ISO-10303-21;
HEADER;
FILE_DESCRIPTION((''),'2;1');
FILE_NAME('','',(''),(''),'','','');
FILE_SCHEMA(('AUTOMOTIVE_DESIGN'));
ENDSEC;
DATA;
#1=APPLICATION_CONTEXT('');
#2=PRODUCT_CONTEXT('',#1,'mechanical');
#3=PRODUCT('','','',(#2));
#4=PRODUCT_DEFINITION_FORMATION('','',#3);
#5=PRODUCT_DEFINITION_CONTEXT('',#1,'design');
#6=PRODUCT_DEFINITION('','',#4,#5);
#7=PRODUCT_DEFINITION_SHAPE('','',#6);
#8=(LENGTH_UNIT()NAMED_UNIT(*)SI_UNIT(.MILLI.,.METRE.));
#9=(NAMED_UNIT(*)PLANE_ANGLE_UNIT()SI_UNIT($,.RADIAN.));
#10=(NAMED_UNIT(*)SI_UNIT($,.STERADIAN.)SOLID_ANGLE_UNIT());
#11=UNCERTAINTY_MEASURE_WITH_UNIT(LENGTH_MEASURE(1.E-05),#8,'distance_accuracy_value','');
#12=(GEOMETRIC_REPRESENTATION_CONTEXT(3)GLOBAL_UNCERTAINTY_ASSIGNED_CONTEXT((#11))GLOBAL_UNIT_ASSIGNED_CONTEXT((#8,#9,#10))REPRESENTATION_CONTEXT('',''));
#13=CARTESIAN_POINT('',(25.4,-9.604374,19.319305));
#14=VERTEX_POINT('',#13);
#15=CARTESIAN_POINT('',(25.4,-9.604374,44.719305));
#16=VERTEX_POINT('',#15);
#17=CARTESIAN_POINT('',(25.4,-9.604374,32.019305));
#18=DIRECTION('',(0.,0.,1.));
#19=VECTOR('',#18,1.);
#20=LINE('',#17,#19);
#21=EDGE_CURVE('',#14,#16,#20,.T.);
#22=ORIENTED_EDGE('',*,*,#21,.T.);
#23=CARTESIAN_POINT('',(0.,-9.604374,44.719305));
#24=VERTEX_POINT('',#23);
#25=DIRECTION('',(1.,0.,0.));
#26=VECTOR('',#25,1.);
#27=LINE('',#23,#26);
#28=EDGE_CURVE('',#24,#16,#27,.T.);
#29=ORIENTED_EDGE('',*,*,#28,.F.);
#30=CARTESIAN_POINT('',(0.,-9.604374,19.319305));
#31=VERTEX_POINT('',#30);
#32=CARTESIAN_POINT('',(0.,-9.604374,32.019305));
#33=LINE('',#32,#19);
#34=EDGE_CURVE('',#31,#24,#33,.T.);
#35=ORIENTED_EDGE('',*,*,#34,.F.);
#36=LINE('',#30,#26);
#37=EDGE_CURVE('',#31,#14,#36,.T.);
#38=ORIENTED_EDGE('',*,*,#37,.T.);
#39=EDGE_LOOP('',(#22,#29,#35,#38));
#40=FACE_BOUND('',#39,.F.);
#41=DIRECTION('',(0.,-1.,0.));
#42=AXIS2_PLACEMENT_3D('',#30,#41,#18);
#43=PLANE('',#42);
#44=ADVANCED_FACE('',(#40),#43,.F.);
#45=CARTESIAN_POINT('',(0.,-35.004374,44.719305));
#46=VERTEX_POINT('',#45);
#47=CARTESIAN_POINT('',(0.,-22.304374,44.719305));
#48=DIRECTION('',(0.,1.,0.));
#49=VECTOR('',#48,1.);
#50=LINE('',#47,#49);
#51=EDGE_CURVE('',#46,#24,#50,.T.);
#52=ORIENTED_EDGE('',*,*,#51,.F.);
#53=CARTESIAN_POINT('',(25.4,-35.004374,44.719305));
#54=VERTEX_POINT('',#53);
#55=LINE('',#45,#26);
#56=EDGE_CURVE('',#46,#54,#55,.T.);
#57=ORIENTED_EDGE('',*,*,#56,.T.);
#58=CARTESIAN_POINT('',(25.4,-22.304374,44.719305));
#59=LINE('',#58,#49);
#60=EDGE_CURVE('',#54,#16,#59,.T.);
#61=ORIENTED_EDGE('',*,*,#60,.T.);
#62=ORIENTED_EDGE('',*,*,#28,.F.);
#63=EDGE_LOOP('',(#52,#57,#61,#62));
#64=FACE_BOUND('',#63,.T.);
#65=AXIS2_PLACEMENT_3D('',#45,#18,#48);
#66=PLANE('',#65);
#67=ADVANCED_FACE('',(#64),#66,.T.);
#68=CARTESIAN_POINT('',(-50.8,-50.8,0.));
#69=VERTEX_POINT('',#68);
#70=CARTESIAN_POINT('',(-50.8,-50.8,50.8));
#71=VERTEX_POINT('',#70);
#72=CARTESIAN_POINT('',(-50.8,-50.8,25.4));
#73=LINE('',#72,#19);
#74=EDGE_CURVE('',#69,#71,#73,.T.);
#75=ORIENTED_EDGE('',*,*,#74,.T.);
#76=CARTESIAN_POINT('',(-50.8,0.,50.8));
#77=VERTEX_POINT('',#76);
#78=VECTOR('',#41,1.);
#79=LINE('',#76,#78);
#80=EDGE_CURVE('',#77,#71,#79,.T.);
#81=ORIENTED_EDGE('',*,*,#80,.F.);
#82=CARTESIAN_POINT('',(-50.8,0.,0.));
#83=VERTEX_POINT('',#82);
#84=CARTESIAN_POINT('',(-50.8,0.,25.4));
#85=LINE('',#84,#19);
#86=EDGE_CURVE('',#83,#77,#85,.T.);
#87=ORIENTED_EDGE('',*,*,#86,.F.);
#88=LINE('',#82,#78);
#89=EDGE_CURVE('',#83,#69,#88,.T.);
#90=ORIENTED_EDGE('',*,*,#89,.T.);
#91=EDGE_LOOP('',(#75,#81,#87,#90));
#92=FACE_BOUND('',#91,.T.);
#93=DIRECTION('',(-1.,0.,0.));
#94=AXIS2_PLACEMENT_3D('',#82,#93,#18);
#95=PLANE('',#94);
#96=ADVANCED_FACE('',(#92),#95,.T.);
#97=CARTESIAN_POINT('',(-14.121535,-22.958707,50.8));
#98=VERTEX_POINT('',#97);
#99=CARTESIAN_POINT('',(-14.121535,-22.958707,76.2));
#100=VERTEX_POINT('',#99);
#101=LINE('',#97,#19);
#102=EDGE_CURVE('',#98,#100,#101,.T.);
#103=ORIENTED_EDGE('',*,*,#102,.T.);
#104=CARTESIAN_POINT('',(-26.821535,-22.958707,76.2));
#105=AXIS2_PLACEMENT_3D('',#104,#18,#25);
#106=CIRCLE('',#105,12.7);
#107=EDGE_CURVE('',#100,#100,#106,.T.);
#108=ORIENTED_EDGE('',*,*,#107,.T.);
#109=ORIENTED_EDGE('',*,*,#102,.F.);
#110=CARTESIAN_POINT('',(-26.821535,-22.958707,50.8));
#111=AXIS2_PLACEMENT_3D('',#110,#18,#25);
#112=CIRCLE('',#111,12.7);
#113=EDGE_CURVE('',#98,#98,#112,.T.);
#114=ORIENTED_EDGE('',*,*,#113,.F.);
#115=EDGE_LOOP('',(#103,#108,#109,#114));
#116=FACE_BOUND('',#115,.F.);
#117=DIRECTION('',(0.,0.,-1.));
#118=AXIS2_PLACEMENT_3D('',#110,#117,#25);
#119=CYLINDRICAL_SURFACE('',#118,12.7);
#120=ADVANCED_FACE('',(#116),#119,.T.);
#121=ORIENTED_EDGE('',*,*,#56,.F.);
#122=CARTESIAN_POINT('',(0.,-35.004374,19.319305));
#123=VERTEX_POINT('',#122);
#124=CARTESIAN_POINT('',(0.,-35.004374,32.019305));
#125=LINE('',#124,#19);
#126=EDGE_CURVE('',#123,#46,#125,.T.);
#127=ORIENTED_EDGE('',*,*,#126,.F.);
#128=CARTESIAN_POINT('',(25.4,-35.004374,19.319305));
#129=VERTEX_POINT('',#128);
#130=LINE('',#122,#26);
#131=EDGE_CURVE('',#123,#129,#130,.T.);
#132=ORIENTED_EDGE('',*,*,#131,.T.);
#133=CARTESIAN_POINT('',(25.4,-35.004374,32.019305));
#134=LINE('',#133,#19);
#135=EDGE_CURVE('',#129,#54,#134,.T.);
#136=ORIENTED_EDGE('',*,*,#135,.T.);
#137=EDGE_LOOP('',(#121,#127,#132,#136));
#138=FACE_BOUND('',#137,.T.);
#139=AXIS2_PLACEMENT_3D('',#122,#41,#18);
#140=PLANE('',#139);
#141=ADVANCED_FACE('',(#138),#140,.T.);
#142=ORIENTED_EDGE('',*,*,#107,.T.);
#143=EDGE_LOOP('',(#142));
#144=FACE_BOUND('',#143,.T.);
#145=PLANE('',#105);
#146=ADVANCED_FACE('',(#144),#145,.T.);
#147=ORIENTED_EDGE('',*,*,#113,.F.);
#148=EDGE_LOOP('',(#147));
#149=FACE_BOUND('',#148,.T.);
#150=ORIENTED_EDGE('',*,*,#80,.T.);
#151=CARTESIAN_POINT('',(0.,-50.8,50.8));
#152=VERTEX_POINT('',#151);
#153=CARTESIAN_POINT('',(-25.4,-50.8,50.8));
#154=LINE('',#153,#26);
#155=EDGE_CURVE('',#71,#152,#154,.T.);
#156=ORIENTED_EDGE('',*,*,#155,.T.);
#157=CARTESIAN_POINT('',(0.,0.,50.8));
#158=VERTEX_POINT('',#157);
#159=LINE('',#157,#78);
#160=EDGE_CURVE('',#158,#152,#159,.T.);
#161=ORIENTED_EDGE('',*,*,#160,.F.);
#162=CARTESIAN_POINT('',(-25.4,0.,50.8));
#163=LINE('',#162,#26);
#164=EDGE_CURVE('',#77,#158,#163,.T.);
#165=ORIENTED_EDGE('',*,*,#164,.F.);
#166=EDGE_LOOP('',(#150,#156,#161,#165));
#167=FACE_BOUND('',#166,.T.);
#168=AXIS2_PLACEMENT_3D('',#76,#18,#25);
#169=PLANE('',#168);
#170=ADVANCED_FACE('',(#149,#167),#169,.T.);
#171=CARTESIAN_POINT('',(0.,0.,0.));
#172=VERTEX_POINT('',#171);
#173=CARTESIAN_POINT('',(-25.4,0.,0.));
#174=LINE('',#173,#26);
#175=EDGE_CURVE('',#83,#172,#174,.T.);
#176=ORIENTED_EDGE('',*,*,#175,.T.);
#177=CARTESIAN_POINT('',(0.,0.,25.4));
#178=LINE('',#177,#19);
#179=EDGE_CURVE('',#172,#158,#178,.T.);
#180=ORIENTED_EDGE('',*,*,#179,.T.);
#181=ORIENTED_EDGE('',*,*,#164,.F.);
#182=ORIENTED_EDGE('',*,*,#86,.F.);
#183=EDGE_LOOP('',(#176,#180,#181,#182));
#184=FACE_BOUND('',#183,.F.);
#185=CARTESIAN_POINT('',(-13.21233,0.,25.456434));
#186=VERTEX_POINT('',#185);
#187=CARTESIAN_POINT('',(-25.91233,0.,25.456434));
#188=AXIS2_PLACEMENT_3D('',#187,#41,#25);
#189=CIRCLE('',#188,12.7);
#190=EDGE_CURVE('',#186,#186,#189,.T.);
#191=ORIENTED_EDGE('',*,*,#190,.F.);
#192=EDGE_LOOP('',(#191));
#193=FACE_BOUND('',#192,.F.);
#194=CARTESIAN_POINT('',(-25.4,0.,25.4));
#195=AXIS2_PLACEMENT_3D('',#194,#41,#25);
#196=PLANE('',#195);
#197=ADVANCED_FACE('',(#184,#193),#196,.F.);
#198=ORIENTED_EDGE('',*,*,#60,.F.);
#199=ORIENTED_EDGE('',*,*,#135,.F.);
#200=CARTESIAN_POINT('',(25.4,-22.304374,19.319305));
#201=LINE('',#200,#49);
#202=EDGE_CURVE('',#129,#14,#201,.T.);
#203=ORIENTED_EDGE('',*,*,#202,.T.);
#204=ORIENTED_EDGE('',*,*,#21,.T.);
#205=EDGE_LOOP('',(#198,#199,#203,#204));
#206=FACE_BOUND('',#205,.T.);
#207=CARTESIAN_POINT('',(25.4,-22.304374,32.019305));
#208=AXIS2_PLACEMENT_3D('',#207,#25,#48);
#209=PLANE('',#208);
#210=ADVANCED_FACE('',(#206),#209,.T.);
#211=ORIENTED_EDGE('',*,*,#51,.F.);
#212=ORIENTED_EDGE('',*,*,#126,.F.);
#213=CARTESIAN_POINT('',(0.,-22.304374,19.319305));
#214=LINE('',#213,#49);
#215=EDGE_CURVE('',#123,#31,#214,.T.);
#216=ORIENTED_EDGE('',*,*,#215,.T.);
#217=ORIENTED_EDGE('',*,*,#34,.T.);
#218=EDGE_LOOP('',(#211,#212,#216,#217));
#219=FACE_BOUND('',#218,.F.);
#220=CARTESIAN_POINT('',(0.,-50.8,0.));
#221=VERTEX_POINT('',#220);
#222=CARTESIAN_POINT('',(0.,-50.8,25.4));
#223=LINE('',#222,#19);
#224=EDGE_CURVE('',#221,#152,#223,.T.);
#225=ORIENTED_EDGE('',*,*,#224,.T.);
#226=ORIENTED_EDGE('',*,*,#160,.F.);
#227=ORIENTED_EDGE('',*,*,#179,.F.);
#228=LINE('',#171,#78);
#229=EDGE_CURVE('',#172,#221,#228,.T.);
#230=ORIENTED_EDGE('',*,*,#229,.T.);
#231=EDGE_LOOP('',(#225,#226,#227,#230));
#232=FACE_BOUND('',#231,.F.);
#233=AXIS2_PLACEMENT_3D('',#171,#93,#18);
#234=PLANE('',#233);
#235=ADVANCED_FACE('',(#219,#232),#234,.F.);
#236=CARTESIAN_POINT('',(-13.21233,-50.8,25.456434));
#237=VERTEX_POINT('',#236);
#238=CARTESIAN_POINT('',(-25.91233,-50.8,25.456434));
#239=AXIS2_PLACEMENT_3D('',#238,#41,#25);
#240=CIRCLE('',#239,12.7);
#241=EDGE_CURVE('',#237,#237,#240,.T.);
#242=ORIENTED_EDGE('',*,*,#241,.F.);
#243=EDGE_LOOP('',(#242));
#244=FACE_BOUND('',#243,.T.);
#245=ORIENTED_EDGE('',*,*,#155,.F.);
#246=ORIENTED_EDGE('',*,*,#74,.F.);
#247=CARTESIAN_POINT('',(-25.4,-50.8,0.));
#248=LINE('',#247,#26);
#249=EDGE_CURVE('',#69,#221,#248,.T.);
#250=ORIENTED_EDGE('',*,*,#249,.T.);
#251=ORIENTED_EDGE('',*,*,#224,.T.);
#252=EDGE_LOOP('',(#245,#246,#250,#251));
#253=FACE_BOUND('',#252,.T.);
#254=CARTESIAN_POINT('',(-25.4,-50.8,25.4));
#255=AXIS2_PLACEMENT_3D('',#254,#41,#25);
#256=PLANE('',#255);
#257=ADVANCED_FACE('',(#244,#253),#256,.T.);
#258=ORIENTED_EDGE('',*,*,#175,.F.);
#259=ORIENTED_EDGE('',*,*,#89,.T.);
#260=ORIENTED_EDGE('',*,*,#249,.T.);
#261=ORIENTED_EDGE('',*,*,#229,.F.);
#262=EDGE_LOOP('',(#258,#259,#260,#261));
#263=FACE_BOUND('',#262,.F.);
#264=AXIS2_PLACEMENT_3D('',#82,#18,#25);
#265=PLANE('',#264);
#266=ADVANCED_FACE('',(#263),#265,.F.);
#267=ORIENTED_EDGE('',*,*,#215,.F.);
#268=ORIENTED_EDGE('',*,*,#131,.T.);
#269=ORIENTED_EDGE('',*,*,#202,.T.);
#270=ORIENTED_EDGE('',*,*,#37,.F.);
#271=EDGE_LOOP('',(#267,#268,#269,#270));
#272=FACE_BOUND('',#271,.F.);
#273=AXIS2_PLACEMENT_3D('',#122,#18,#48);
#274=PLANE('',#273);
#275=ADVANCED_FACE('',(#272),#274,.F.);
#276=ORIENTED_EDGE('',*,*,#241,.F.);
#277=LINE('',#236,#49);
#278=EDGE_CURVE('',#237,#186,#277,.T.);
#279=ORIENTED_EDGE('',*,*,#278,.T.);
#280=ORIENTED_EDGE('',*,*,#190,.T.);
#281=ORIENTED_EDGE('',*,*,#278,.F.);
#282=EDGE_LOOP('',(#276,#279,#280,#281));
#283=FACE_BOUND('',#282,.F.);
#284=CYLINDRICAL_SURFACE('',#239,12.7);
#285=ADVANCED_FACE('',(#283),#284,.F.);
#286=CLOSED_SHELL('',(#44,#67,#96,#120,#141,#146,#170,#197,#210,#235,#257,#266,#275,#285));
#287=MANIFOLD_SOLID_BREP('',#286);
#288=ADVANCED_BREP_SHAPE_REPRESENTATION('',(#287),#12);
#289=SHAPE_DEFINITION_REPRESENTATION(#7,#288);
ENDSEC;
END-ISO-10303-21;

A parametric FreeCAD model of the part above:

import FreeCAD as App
import Part
import Sketcher
Q = App.Units.Quantity


def add_polygon(sketch, points):
    """Adds a closed chain of lines whose ends are joined by coincident constraints."""
    first, n = sketch.GeometryCount, len(points)
    for a, b in zip(points, points[1:] + points[:1]):
        sketch.addGeometry(Part.LineSegment(App.Vector(*a, 0), App.Vector(*b, 0)), False)
    for i in range(n):
        sketch.addConstraint(Sketcher.Constraint("Coincident", first + i, 2, first + (i + 1) % n, 1))

doc = App.newDocument("Part")
body = doc.addObject("PartDesign::Body", "Body")

# Sketch on XZ plane
sketch1 = body.newObject("Sketcher::SketchObject", "Sketch")
sketch1.AttachmentSupport = (doc.getObject("XZ_Plane"), [""])
sketch1.MapMode = "FlatFace"
add_polygon(sketch1, [(-51, 51), (-51, 0), (0, 0), (0, 51)])  # lines 0-3
sketch1.addConstraint(Sketcher.Constraint("Vertical", 0))
sketch1.addConstraint(Sketcher.Constraint("Horizontal", 1))
sketch1.addConstraint(Sketcher.Constraint("Vertical", 2))
sketch1.addConstraint(Sketcher.Constraint("Horizontal", 3))
sketch1.addConstraint(Sketcher.Constraint("Coincident", 1, 2, -1, 1))
sketch1.addConstraint(Sketcher.Constraint("Equal", 3, 0))
sketch1.addConstraint(Sketcher.Constraint("DistanceX", 1, 1, 1, 2, Q("2 in")))
pad1 = body.newObject("PartDesign::Pad", "Pad")
pad1.Profile = sketch1
pad1.Length = Q("2 in")

# Sketch on XZ plane
sketch2 = body.newObject("Sketcher::SketchObject", "Sketch001")
sketch2.AttachmentSupport = (doc.getObject("XZ_Plane"), [""])
sketch2.MapMode = "FlatFace"
sketch2.AttachmentOffset = App.Placement(App.Vector(0, 0, 2 * 25.4), App.Rotation())
sketch2.addGeometry(Part.Circle(App.Vector(-26, 25, 0), App.Vector(0, 0, 1), 13), False)
sketch2.addConstraint(Sketcher.Constraint("Diameter", 0, Q("1 in")))
sketch2.addConstraint(Sketcher.Constraint("DistanceX", 0, 3, -1, 1, 25.91233))
sketch2.addConstraint(Sketcher.Constraint("DistanceY", -1, 1, 0, 3, 25.456434))
pocket1 = body.newObject("PartDesign::Pocket", "Pocket")
pocket1.Profile = sketch2
pocket1.Length = Q("2 in")

# Sketch on YZ plane
sketch3 = body.newObject("Sketcher::SketchObject", "Sketch002")
sketch3.AttachmentSupport = (doc.getObject("YZ_Plane"), [""])
sketch3.MapMode = "FlatFace"
add_polygon(sketch3, [(-35, 45), (-35, 19), (-10, 19), (-10, 45)])  # lines 0-3
sketch3.addConstraint(Sketcher.Constraint("Vertical", 0))
sketch3.addConstraint(Sketcher.Constraint("Horizontal", 1))
sketch3.addConstraint(Sketcher.Constraint("Vertical", 2))
sketch3.addConstraint(Sketcher.Constraint("Horizontal", 3))
sketch3.addConstraint(Sketcher.Constraint("Equal", 3, 0))
sketch3.addConstraint(Sketcher.Constraint("DistanceX", 1, 1, 1, 2, Q("1 in")))
sketch3.addConstraint(Sketcher.Constraint("DistanceX", 0, 2, -1, 1, 35.004374))
sketch3.addConstraint(Sketcher.Constraint("DistanceY", -1, 1, 0, 2, 19.319305))
pad2 = body.newObject("PartDesign::Pad", "Pad001")
pad2.Profile = sketch3
pad2.Length = Q("1 in")

# Sketch on XY plane
sketch4 = body.newObject("Sketcher::SketchObject", "Sketch003")
sketch4.AttachmentSupport = (doc.getObject("XY_Plane"), [""])
sketch4.MapMode = "FlatFace"
sketch4.AttachmentOffset = App.Placement(App.Vector(0, 0, 2 * 25.4), App.Rotation())
sketch4.addGeometry(Part.Circle(App.Vector(-27, -23, 0), App.Vector(0, 0, 1), 13), False)
sketch4.addConstraint(Sketcher.Constraint("Diameter", 0, Q("1 in")))
sketch4.addConstraint(Sketcher.Constraint("DistanceX", 0, 3, -1, 1, 26.821535))
sketch4.addConstraint(Sketcher.Constraint("DistanceY", 0, 3, -1, 1, 22.958707))
pad3 = body.newObject("PartDesign::Pad", "Pad002")
pad3.Profile = sketch4
pad3.Length = Q("1 in")

doc.recompute()
